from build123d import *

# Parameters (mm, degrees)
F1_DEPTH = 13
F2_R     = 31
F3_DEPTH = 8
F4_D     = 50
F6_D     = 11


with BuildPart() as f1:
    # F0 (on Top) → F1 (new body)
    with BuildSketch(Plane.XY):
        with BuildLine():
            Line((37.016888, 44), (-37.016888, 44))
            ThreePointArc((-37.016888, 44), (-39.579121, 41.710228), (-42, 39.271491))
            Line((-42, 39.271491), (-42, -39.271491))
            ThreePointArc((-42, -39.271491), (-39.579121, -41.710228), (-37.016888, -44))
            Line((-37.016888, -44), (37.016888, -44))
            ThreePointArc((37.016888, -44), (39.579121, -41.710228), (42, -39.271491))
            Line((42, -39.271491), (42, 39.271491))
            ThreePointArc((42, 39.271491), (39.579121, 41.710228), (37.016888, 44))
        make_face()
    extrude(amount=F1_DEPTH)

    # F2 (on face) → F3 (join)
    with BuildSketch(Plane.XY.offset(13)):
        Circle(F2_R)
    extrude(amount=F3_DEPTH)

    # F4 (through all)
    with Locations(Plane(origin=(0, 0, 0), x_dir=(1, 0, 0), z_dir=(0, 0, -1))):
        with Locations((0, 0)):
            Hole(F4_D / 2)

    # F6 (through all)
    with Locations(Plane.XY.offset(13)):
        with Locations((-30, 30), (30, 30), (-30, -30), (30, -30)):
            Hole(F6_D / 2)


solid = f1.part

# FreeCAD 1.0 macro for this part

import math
import FreeCAD as App
import Part
import Sketcher

doc = App.newDocument("Part")
body = doc.addObject("PartDesign::Body", "Body")

# Sketch on XY plane
sketch1 = doc.addObject("Sketcher::SketchObject", "Sketch")
body.addObject(sketch1)
sketch1.AttachmentSupport = (doc.XY_Plane, [""])
sketch1.MapMode = "FlatFace"
sketch1.addGeometry([
    Part.LineSegment(App.Vector(37.016888, 44, 0), App.Vector(-37.016888, 44, 0)),  # 0
    Part.ArcOfCircle(Part.Circle(App.Vector(0.000209, -0.000221, 0), App.Vector(0, 0, 1), 57.500303), math.radians(130.073681), math.radians(136.922837)),  # 1
    Part.LineSegment(App.Vector(-42, 39.271491, 0), App.Vector(-42, -39.271491, 0)),  # 2
    Part.ArcOfCircle(Part.Circle(App.Vector(0.000209, 0.000221, 0), App.Vector(0, 0, 1), 57.500303), math.radians(-136.922837), math.radians(-130.073681)),  # 3
    Part.LineSegment(App.Vector(-37.016888, -44, 0), App.Vector(37.016888, -44, 0)),  # 4
    Part.ArcOfCircle(Part.Circle(App.Vector(-0.000209, 0.000221, 0), App.Vector(0, 0, 1), 57.500303), math.radians(-49.926319), math.radians(-43.077163)),  # 5
    Part.LineSegment(App.Vector(42, -39.271491, 0), App.Vector(42, 39.271491, 0)),  # 6
    Part.ArcOfCircle(Part.Circle(App.Vector(-0.000209, -0.000221, 0), App.Vector(0, 0, 1), 57.500303), math.radians(43.077163), math.radians(49.926319)),  # 7
], False)
sketch1.addConstraint([
    Sketcher.Constraint("Coincident", 0, 2, 1, 1),
    Sketcher.Constraint("Coincident", 1, 2, 2, 1),
    Sketcher.Constraint("Coincident", 2, 2, 3, 1),
    Sketcher.Constraint("Coincident", 3, 2, 4, 1),
    Sketcher.Constraint("Coincident", 4, 2, 5, 1),
    Sketcher.Constraint("Coincident", 5, 2, 6, 1),
    Sketcher.Constraint("Coincident", 6, 2, 7, 1),
    Sketcher.Constraint("Coincident", 7, 2, 0, 1),
    Sketcher.Constraint("Horizontal", 0),
    Sketcher.Constraint("Vertical", 2),
    Sketcher.Constraint("Horizontal", 4),
    Sketcher.Constraint("Vertical", 6),
    Sketcher.Constraint("Equal", 1, 3),
    Sketcher.Constraint("Equal", 3, 5),
    Sketcher.Constraint("Equal", 5, 7),
    Sketcher.Constraint("Symmetric", 1, 3, 5, 3, -1, 1),
    Sketcher.Constraint("Symmetric", 3, 3, 7, 3, -1, 1),
    Sketcher.Constraint("Symmetric", 3, 3, 5, 3, -2),
    Sketcher.Constraint("Horizontal", 2, 2, 5, 2),
    Sketcher.Constraint("Vertical", 0, 2, 3, 2),
    Sketcher.Constraint("DistanceY", -1, 1, 0, 2, 44.0),
    Sketcher.Constraint("DistanceX", 1, 2, -1, 1, 42.0),
    Sketcher.Constraint("Radius", 1, 57.500303),
    Sketcher.Constraint("DistanceY", 2, 2, 2, 1, 78.542982),
    Sketcher.Constraint("DistanceX", 0, 2, 0, 1, 74.033776),
])
pad1 = doc.addObject("PartDesign::Pad", "Pad")
body.addObject(pad1)
pad1.Profile = sketch1
pad1.Length = 13

# Sketch on XY plane
sketch2 = doc.addObject("Sketcher::SketchObject", "Sketch001")
body.addObject(sketch2)
sketch2.AttachmentSupport = (doc.XY_Plane, [""])
sketch2.MapMode = "FlatFace"
sketch2.AttachmentOffset = App.Placement(App.Vector(0, 0, 13), App.Rotation())
sketch2.addGeometry(Part.Circle(App.Vector(0, 0, 0), App.Vector(0, 0, 1), 31), False)
sketch2.addConstraint([
    Sketcher.Constraint("Coincident", 0, 3, -1, 1),
    Sketcher.Constraint("Diameter", 0, 62.0),
])
pad2 = doc.addObject("PartDesign::Pad", "Pad001")
body.addObject(pad2)
pad2.Profile = sketch2
pad2.Length = 8

# Sketch on XY plane
sketch3 = doc.addObject("Sketcher::SketchObject", "Sketch002")
body.addObject(sketch3)
sketch3.AttachmentSupport = (doc.XY_Plane, [""])
sketch3.MapMode = "FlatFace"
sketch3.addGeometry(Part.Circle(App.Vector(0, 0, 0), App.Vector(0, 0, 1), 25), False)
sketch3.addConstraint([
    Sketcher.Constraint("Coincident", 0, 3, -1, 1),
    Sketcher.Constraint("Diameter", 0, 50.0),
])
doc.recompute()
hole = doc.addObject("PartDesign::Hole", "Hole")
body.addObject(hole)
hole.Profile = sketch3
hole.ThreadType = "None"
hole.Diameter = 50
hole.DepthType = "ThroughAll"
hole.Reversed = True

# Sketch on XY plane
sketch4 = doc.addObject("Sketcher::SketchObject", "Sketch003")
body.addObject(sketch4)
sketch4.AttachmentSupport = (doc.XY_Plane, [""])
sketch4.MapMode = "FlatFace"
sketch4.AttachmentOffset = App.Placement(App.Vector(0, 0, 13), App.Rotation())
sketch4.addGeometry([
    Part.Circle(App.Vector(-30, 30, 0), App.Vector(0, 0, 1), 6),
    Part.Circle(App.Vector(30, 30, 0), App.Vector(0, 0, 1), 6),
    Part.Circle(App.Vector(-30, -30, 0), App.Vector(0, 0, 1), 6),
    Part.Circle(App.Vector(30, -30, 0), App.Vector(0, 0, 1), 6),
], False)
sketch4.addConstraint([
    Sketcher.Constraint("Equal", 0, 1),
    Sketcher.Constraint("Equal", 1, 2),
    Sketcher.Constraint("Equal", 2, 3),
    Sketcher.Constraint("Symmetric", 1, 3, 2, 3, -1, 1),
    Sketcher.Constraint("Symmetric", 0, 3, 3, 3, -1, 1),
    Sketcher.Constraint("Symmetric", 0, 3, 1, 3, -2),
    Sketcher.Constraint("Diameter", 0, 11.0),
    Sketcher.Constraint("DistanceX", 0, 3, -1, 1, 30.0),
    Sketcher.Constraint("DistanceY", -1, 1, 0, 3, 30.0),
])
doc.recompute()
hole2 = doc.addObject("PartDesign::Hole", "Hole001")
body.addObject(hole2)
hole2.Profile = sketch4
hole2.ThreadType = "None"
hole2.Diameter = 11
hole2.DepthType = "ThroughAll"

doc.recompute()
